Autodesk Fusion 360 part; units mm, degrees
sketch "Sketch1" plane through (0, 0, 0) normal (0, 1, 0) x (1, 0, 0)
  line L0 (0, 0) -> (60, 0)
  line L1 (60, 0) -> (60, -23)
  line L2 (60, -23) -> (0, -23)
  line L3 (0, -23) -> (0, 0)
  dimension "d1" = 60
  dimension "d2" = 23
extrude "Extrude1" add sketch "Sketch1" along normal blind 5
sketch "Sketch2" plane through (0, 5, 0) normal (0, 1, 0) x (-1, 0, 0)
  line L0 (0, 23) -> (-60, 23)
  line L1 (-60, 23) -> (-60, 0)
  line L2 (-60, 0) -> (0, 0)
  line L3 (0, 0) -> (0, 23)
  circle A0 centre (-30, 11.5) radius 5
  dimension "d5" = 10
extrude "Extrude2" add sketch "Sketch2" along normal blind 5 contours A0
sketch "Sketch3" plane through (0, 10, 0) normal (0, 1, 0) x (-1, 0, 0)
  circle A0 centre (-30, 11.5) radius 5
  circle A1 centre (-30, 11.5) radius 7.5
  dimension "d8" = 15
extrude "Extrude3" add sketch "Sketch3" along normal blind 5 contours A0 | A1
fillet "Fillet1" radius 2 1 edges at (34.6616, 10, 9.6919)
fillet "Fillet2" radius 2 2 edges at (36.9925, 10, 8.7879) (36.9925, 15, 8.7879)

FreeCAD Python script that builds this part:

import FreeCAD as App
import Part
import Sketcher

V = App.Vector
Q = App.Units.Quantity


def edges_at(feature, points):
    """Names of the edges that pass closest to the given points."""
    edges = feature.Shape.Edges
    near = lambda p: min(range(len(edges)), key=lambda i: edges[i].distToShape(Part.Vertex(*p))[0])
    return sorted({f"Edge{near(p) + 1}" for p in points})


def add_polygon(sketch, points):
    """Adds a closed chain of lines whose ends are joined by coincident constraints."""
    first, n = sketch.GeometryCount, len(points)
    for a, b in zip(points, points[1:] + points[:1]):
        sketch.addGeometry(Part.LineSegment(App.Vector(*a, 0), App.Vector(*b, 0)), False)
    for i in range(n):
        sketch.addConstraint(Sketcher.Constraint("Coincident", first + i, 2, first + (i + 1) % n, 1))

doc = App.newDocument("Part")
body = doc.addObject("PartDesign::Body", "Body")

sketch1 = body.newObject("Sketcher::SketchObject", "Sketch")
sketch1.AttachmentSupport = (doc.getObject("XZ_Plane"), [""])
sketch1.MapMode = "FlatFace"
add_polygon(sketch1, [(60, 0), (0, 0), (0, 23), (60, 23)])
sketch1.addConstraint([
    Sketcher.Constraint("Horizontal", 0),
    Sketcher.Constraint("Vertical", 1),
    Sketcher.Constraint("Horizontal", 2),
    Sketcher.Constraint("Vertical", 3),
    Sketcher.Constraint("Coincident", 0, 2, -1, 1),
    Sketcher.Constraint("DistanceX", 0, 2, 0, 1, Q("60 mm")),
    Sketcher.Constraint("DistanceY", 1, 1, 1, 2, Q("23 mm")),
])
pad1 = body.newObject("PartDesign::Pad", "Pad")
pad1.Profile = sketch1
pad1.Length = 5
pad1.Reversed = True

sketch2 = body.newObject("Sketcher::SketchObject", "Sketch001")
sketch2.AttachmentSupport = (doc.getObject("XZ_Plane"), [""])
sketch2.MapMode = "FlatFace"
sketch2.AttachmentOffset = App.Placement(V(0, 0, -5), App.Rotation())
sketch2.addGeometry(Part.Circle(V(30, 12, 0), V(0, 0, 1), 5), False)
sketch2.addConstraint([
    Sketcher.Constraint("Diameter", 0, Q("10 mm")),
    Sketcher.Constraint("DistanceX", -1, 1, 0, 3, Q("30 mm")),
    Sketcher.Constraint("DistanceY", -1, 1, 0, 3, Q("11.5 mm")),
])
pad2 = body.newObject("PartDesign::Pad", "Pad001")
pad2.Profile = sketch2
pad2.Length = 5
pad2.Reversed = True

sketch3 = body.newObject("Sketcher::SketchObject", "Sketch002")
sketch3.AttachmentSupport = (doc.getObject("XZ_Plane"), [""])
sketch3.MapMode = "FlatFace"
sketch3.AttachmentOffset = App.Placement(V(0, 0, -10), App.Rotation())
sketch3.addGeometry(Part.Circle(V(30, 12, 0), V(0, 0, 1), 8), False)
sketch3.addConstraint([
    Sketcher.Constraint("Diameter", 0, Q("15 mm")),
    Sketcher.Constraint("DistanceX", -1, 1, 0, 3, Q("30 mm")),
    Sketcher.Constraint("DistanceY", -1, 1, 0, 3, Q("11.5 mm")),
])
pad3 = body.newObject("PartDesign::Pad", "Pad002")
pad3.Profile = sketch3
pad3.Length = 5
pad3.Reversed = True
doc.recompute()

fillet = body.newObject("PartDesign::Fillet", "Fillet")
fillet.Base = (pad3, edges_at(pad3, [(34.662, 10, 9.692)]))
fillet.Radius = 2
doc.recompute()

fillet2 = body.newObject("PartDesign::Fillet", "Fillet001")
fillet2.Base = (fillet, edges_at(fillet, [(36.992, 10, 8.788), (36.992, 15, 8.788)]))
fillet2.Radius = 2

doc.recompute()
